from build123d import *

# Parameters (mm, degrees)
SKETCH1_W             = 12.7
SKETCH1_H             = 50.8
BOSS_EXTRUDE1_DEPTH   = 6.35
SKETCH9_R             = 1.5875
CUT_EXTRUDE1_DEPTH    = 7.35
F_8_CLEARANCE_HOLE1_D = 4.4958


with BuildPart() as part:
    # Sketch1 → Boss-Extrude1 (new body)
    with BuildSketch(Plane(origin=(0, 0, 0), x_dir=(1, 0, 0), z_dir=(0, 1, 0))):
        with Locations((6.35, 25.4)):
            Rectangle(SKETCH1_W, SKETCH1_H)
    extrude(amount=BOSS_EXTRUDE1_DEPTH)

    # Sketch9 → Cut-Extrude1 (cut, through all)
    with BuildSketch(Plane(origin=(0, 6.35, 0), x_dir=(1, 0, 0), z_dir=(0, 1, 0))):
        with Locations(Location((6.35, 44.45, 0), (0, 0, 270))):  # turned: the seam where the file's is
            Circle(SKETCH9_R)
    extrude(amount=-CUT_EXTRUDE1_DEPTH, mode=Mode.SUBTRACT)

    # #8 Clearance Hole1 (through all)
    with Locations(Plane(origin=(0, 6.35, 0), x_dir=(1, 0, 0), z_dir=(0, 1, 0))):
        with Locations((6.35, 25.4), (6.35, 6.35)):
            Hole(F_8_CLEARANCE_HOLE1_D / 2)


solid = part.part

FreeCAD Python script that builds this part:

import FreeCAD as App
import Part
import Sketcher
from FreeCAD import Vector
Q = App.Units.Quantity

doc = App.newDocument("Part")
params = doc.addObject("Spreadsheet::Sheet", "Params")
for row, (alias, value) in enumerate([
    ("sketch1_height", "2 in"),
    ("sketch1_width", "0.5 in"),
    ("pad1_length", "0.25 in"),
    ("sketch2_diameter", "0.125 in"),
    ("sketch3_diameter", "0.177 in"),
    ("hole_diameter", "0.177 in"),
], start=1):
    params.set(f"A{row}", alias)
    params.set(f"B{row}", "=" + value)
    params.setAlias(f"B{row}", alias)

body = doc.addObject("PartDesign::Body", "Body")

# Sketch on XZ plane
sketch1 = body.newObject("Sketcher::SketchObject", "Sketch")
sketch1.AttachmentSupport = (doc.getObject("XZ_Plane"), [""])
sketch1.MapMode = "FlatFace"
sketch1.addGeometry(Part.LineSegment(Vector(0, -51, 0), Vector(0, 0, 0)), False)
sketch1.addGeometry(Part.LineSegment(Vector(0, 0, 0), Vector(13, 0, 0)), False)
sketch1.addGeometry(Part.LineSegment(Vector(13, 0, 0), Vector(13, -51, 0)), False)
sketch1.addGeometry(Part.LineSegment(Vector(13, -51, 0), Vector(0, -51, 0)), False)
sketch1.addConstraint(Sketcher.Constraint("Coincident", 0, 2, 1, 1))
sketch1.addConstraint(Sketcher.Constraint("Coincident", 1, 2, 2, 1))
sketch1.addConstraint(Sketcher.Constraint("Coincident", 2, 2, 3, 1))
sketch1.addConstraint(Sketcher.Constraint("Coincident", 3, 2, 0, 1))
sketch1.addConstraint(Sketcher.Constraint("Vertical", 0))
sketch1.addConstraint(Sketcher.Constraint("Horizontal", 1))
sketch1.addConstraint(Sketcher.Constraint("Vertical", 2))
sketch1.addConstraint(Sketcher.Constraint("Horizontal", 3))
sketch1.addConstraint(Sketcher.Constraint("Coincident", 0, 2, -1, 1))
sketch1.addConstraint(Sketcher.Constraint("DistanceY", 0, 1, 0, 2, Q("2 in")))
sketch1.addConstraint(Sketcher.Constraint("DistanceX", 1, 1, 1, 2, Q("0.5 in")))
sketch1.setExpression("Constraints[9]", "Params.sketch1_height")
sketch1.setExpression("Constraints[10]", "Params.sketch1_width")
pad1 = body.newObject("PartDesign::Pad", "Pad")
pad1.Profile = sketch1
pad1.setExpression("Length", "Params.pad1_length")
pad1.Reversed = True

# Sketch on XZ plane
sketch2 = body.newObject("Sketcher::SketchObject", "Sketch001")
sketch2.AttachmentSupport = (doc.getObject("XZ_Plane"), [""])
sketch2.MapMode = "FlatFace"
sketch2.AttachmentOffset = App.Placement(Vector(0, 0, -0.25 * 25.4), App.Rotation())
sketch2.addGeometry(Part.Circle(Vector(6.3, -44.5, 0), Vector(0, 0, 1), 1.6), False)
sketch2.addConstraint(Sketcher.Constraint("Diameter", 0, Q("0.125 in")))
sketch2.addConstraint(Sketcher.Constraint("DistanceX", -1, 1, 0, 3, Q("0.25 in")))
sketch2.addConstraint(Sketcher.Constraint("DistanceY", 0, 3, -1, 1, Q("1.75 in")))
sketch2.setExpression("Constraints[0]", "Params.sketch2_diameter")
pocket1 = body.newObject("PartDesign::Pocket", "Pocket")
pocket1.Profile = sketch2
pocket1.Type = "ThroughAll"
pocket1.Reversed = True

# Sketch on XZ plane
sketch3 = body.newObject("Sketcher::SketchObject", "Sketch002")
sketch3.AttachmentSupport = (doc.getObject("XZ_Plane"), [""])
sketch3.MapMode = "FlatFace"
sketch3.AttachmentOffset = App.Placement(Vector(0, 0, -0.25 * 25.4), App.Rotation())
sketch3.addGeometry(Part.Circle(Vector(6.3, -25.4, 0), Vector(0, 0, 1), 2.2), False)
sketch3.addGeometry(Part.Circle(Vector(6.3, -6.3, 0), Vector(0, 0, 1), 2.2), False)
sketch3.addConstraint(Sketcher.Constraint("Equal", 0, 1))
sketch3.addConstraint(Sketcher.Constraint("Vertical", 0, 3, 1, 3))
sketch3.addConstraint(Sketcher.Constraint("Diameter", 0, Q("0.177 in")))
sketch3.addConstraint(Sketcher.Constraint("DistanceY", 0, 3, -1, 1, Q("1 in")))
sketch3.addConstraint(Sketcher.Constraint("DistanceX", -1, 1, 0, 3, Q("0.25 in")))
sketch3.addConstraint(Sketcher.Constraint("DistanceY", 1, 3, -1, 1, Q("0.25 in")))
sketch3.setExpression("Constraints[2]", "Params.sketch3_diameter")
doc.recompute()
hole = body.newObject("PartDesign::Hole", "Hole")
hole.Profile = sketch3
hole.ThreadType = "None"
hole.setExpression("Diameter", "Params.hole_diameter")
hole.DepthType = "ThroughAll"
hole.Reversed = True

doc.recompute()
